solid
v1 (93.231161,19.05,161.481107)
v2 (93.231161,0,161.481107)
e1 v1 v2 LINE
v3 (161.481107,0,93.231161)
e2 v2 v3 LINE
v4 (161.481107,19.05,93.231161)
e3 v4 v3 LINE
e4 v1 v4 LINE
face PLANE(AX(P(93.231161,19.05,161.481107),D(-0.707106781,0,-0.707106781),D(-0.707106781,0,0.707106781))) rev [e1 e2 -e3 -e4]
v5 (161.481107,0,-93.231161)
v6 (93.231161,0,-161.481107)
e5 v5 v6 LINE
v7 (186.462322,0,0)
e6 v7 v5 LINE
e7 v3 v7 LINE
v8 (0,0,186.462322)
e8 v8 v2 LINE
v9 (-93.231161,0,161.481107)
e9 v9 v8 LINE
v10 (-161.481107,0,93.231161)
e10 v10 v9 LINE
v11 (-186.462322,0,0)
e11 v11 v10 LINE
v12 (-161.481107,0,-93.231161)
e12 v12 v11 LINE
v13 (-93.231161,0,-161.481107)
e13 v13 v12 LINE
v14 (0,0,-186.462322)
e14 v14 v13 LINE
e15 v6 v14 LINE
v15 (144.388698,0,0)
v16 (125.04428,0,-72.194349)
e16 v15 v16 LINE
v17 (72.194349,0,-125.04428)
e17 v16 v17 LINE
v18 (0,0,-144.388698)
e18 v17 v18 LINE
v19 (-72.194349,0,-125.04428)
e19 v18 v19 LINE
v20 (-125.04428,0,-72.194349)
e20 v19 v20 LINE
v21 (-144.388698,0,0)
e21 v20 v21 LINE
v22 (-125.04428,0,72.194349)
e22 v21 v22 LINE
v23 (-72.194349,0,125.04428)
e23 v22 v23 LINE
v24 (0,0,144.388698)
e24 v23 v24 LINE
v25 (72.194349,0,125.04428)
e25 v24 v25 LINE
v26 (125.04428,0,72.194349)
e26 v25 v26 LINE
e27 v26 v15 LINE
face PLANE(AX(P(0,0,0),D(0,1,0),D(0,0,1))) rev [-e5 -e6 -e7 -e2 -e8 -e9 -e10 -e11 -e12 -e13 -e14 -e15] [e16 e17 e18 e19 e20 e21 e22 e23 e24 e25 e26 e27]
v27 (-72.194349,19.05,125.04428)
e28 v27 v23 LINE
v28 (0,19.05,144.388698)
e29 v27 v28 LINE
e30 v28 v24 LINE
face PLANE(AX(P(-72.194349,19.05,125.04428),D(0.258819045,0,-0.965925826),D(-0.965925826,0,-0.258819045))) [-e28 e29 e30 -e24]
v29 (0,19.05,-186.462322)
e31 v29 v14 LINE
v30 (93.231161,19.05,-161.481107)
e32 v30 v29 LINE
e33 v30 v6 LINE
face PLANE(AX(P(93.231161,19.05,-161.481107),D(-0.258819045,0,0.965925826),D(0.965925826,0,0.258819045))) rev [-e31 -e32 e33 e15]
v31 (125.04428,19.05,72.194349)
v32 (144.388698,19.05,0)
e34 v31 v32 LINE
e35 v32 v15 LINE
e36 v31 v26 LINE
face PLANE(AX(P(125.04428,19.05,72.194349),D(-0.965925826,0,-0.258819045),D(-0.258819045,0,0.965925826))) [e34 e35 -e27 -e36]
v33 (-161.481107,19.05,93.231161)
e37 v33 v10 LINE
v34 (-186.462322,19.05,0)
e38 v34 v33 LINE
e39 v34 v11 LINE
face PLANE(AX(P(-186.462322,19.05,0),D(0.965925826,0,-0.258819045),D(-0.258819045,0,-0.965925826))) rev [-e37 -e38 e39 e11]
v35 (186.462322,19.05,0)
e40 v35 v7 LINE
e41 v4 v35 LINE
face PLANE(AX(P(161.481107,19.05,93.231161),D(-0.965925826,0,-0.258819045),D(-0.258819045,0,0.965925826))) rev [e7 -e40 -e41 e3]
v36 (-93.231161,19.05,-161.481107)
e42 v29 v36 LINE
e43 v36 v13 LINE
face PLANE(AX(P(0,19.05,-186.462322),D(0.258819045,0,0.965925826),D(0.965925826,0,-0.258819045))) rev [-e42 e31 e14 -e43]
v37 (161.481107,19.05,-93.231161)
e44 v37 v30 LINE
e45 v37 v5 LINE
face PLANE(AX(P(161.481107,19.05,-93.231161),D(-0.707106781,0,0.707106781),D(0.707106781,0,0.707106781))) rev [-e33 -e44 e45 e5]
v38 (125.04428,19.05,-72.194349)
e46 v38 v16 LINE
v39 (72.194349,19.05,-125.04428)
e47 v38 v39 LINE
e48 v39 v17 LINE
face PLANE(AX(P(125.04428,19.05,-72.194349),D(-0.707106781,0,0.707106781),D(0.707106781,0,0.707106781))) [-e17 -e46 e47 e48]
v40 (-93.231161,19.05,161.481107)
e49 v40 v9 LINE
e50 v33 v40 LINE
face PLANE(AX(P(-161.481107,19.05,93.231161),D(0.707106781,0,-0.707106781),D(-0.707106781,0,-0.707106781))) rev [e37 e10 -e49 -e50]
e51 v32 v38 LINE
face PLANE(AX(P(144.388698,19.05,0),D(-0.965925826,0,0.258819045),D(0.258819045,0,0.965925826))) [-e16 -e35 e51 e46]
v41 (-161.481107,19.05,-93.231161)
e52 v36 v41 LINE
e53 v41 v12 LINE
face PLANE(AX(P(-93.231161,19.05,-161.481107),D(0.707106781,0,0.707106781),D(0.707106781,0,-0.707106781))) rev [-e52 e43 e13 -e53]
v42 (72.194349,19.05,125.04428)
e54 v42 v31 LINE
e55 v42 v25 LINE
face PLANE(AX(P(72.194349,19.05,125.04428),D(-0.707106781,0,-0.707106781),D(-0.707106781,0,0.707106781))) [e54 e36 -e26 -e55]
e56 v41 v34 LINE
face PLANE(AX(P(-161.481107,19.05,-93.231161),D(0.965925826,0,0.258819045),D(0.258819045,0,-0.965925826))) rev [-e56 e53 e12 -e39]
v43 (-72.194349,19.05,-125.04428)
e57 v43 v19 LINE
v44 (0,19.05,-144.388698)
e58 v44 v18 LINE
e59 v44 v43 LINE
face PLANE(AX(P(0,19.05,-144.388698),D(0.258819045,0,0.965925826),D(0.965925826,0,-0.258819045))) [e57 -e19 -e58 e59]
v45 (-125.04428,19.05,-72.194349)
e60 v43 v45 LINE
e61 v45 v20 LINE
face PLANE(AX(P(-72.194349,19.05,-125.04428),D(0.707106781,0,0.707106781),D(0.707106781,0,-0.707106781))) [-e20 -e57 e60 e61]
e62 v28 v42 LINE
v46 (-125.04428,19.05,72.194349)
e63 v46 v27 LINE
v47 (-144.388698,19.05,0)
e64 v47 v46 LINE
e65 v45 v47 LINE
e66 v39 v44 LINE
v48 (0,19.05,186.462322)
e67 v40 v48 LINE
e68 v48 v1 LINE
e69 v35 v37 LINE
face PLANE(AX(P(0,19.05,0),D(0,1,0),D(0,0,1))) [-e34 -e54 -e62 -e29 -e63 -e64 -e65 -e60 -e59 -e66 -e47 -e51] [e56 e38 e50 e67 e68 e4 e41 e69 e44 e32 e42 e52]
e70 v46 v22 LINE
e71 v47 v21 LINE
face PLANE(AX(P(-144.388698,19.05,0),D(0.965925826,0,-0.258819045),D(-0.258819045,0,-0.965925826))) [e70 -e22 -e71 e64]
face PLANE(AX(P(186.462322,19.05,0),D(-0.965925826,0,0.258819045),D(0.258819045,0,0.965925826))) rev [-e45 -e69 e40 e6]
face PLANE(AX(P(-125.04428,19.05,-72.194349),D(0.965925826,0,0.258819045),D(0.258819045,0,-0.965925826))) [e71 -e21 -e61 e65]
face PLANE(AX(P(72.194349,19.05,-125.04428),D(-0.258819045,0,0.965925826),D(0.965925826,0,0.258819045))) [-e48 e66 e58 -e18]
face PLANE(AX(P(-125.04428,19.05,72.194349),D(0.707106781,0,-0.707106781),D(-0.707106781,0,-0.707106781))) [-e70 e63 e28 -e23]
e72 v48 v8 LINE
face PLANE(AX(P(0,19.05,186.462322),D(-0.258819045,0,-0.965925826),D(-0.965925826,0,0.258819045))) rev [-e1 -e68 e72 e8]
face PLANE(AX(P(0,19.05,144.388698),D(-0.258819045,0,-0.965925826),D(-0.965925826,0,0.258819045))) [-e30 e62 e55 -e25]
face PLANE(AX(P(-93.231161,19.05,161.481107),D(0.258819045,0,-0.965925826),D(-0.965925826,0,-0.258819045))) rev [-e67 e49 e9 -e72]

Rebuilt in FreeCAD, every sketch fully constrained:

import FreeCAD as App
import Part
import Sketcher

V = App.Vector
Q = App.Units.Quantity


def add_polygon(sketch, points):
    """Adds a closed chain of lines whose ends are joined by coincident constraints."""
    first, n = sketch.GeometryCount, len(points)
    for a, b in zip(points, points[1:] + points[:1]):
        sketch.addGeometry(Part.LineSegment(App.Vector(*a, 0), App.Vector(*b, 0)), False)
    for i in range(n):
        sketch.addConstraint(Sketcher.Constraint("Coincident", first + i, 2, first + (i + 1) % n, 1))

doc = App.newDocument("Part")
body = doc.addObject("PartDesign::Body", "Body")

# Sketch on XZ plane
sketch1 = body.newObject("Sketcher::SketchObject", "Sketch")
sketch1.AttachmentSupport = (doc.getObject("XZ_Plane"), [""])
sketch1.MapMode = "FlatFace"
add_polygon(sketch1, [(186, 0), (161, -93), (93, -161), (0, -186), (-93, -161), (-161, -93), (-186, 0), (-161, 93), (-93, 161), (0, 186), (93, 161), (161, 93)])  # lines 0-11
add_polygon(sketch1, [(125, -72), (144, 0), (125, 72), (72, 125), (0, 144), (-72, 125), (-125, 72), (-144, 0), (-125, -72), (-72, -125), (0, -144), (72, -125)])  # lines 12-23
sketch1.addConstraint([
    Sketcher.Constraint("Symmetric", 0, 2, 6, 2, -1, 1),
    Sketcher.Constraint("Symmetric", 1, 2, 7, 2, -1, 1),
    Sketcher.Constraint("Symmetric", 2, 2, 8, 2, -1, 1),
    Sketcher.Constraint("Symmetric", 3, 2, 9, 2, -1, 1),
    Sketcher.Constraint("Symmetric", 4, 2, 10, 2, -1, 1),
    Sketcher.Constraint("Symmetric", 5, 2, 11, 2, -1, 1),
    Sketcher.Constraint("Symmetric", 12, 2, 18, 2, -1, 1),
    Sketcher.Constraint("Symmetric", 13, 2, 19, 2, -1, 1),
    Sketcher.Constraint("Symmetric", 14, 2, 20, 2, -1, 1),
    Sketcher.Constraint("Symmetric", 15, 2, 21, 2, -1, 1),
    Sketcher.Constraint("Symmetric", 16, 2, 22, 2, -1, 1),
    Sketcher.Constraint("Symmetric", 17, 2, 23, 2, -1, 1),
    Sketcher.Constraint("Symmetric", 1, 2, 3, 2, -2),
    Sketcher.Constraint("Symmetric", 0, 2, 4, 2, -2),
    Sketcher.Constraint("Symmetric", 14, 2, 16, 2, -2),
    Sketcher.Constraint("Symmetric", 13, 2, 17, 2, -2),
    Sketcher.Constraint("PointOnObject", 2, 2, -2),
    Sketcher.Constraint("PointOnObject", 5, 2, -1),
    Sketcher.Constraint("PointOnObject", 12, 2, -1),
    Sketcher.Constraint("PointOnObject", 15, 2, -2),
    Sketcher.Constraint("Perpendicular", 0, 3),
    Sketcher.Constraint("Perpendicular", 1, 4),
    Sketcher.Constraint("Perpendicular", 9, 12),
    Sketcher.Constraint("Parallel", 10, 14),
    Sketcher.Constraint("Perpendicular", 12, 15),
    Sketcher.Constraint("Equal", 0, 1),
    Sketcher.Constraint("Equal", 1, 2),
    Sketcher.Constraint("Equal", 13, 14),
    Sketcher.Constraint("Equal", 14, 15),
    Sketcher.Constraint("Angle", 0, Q("-105 deg")),
    Sketcher.Constraint("Distance", 0, Q("3.8 in")),
    Sketcher.Constraint("Distance", 12, 74.74109),
])
pad1 = body.newObject("PartDesign::Pad", "Pad")
pad1.Profile = sketch1
pad1.Length = Q("0.75 in")
pad1.Reversed = True

doc.recompute()
